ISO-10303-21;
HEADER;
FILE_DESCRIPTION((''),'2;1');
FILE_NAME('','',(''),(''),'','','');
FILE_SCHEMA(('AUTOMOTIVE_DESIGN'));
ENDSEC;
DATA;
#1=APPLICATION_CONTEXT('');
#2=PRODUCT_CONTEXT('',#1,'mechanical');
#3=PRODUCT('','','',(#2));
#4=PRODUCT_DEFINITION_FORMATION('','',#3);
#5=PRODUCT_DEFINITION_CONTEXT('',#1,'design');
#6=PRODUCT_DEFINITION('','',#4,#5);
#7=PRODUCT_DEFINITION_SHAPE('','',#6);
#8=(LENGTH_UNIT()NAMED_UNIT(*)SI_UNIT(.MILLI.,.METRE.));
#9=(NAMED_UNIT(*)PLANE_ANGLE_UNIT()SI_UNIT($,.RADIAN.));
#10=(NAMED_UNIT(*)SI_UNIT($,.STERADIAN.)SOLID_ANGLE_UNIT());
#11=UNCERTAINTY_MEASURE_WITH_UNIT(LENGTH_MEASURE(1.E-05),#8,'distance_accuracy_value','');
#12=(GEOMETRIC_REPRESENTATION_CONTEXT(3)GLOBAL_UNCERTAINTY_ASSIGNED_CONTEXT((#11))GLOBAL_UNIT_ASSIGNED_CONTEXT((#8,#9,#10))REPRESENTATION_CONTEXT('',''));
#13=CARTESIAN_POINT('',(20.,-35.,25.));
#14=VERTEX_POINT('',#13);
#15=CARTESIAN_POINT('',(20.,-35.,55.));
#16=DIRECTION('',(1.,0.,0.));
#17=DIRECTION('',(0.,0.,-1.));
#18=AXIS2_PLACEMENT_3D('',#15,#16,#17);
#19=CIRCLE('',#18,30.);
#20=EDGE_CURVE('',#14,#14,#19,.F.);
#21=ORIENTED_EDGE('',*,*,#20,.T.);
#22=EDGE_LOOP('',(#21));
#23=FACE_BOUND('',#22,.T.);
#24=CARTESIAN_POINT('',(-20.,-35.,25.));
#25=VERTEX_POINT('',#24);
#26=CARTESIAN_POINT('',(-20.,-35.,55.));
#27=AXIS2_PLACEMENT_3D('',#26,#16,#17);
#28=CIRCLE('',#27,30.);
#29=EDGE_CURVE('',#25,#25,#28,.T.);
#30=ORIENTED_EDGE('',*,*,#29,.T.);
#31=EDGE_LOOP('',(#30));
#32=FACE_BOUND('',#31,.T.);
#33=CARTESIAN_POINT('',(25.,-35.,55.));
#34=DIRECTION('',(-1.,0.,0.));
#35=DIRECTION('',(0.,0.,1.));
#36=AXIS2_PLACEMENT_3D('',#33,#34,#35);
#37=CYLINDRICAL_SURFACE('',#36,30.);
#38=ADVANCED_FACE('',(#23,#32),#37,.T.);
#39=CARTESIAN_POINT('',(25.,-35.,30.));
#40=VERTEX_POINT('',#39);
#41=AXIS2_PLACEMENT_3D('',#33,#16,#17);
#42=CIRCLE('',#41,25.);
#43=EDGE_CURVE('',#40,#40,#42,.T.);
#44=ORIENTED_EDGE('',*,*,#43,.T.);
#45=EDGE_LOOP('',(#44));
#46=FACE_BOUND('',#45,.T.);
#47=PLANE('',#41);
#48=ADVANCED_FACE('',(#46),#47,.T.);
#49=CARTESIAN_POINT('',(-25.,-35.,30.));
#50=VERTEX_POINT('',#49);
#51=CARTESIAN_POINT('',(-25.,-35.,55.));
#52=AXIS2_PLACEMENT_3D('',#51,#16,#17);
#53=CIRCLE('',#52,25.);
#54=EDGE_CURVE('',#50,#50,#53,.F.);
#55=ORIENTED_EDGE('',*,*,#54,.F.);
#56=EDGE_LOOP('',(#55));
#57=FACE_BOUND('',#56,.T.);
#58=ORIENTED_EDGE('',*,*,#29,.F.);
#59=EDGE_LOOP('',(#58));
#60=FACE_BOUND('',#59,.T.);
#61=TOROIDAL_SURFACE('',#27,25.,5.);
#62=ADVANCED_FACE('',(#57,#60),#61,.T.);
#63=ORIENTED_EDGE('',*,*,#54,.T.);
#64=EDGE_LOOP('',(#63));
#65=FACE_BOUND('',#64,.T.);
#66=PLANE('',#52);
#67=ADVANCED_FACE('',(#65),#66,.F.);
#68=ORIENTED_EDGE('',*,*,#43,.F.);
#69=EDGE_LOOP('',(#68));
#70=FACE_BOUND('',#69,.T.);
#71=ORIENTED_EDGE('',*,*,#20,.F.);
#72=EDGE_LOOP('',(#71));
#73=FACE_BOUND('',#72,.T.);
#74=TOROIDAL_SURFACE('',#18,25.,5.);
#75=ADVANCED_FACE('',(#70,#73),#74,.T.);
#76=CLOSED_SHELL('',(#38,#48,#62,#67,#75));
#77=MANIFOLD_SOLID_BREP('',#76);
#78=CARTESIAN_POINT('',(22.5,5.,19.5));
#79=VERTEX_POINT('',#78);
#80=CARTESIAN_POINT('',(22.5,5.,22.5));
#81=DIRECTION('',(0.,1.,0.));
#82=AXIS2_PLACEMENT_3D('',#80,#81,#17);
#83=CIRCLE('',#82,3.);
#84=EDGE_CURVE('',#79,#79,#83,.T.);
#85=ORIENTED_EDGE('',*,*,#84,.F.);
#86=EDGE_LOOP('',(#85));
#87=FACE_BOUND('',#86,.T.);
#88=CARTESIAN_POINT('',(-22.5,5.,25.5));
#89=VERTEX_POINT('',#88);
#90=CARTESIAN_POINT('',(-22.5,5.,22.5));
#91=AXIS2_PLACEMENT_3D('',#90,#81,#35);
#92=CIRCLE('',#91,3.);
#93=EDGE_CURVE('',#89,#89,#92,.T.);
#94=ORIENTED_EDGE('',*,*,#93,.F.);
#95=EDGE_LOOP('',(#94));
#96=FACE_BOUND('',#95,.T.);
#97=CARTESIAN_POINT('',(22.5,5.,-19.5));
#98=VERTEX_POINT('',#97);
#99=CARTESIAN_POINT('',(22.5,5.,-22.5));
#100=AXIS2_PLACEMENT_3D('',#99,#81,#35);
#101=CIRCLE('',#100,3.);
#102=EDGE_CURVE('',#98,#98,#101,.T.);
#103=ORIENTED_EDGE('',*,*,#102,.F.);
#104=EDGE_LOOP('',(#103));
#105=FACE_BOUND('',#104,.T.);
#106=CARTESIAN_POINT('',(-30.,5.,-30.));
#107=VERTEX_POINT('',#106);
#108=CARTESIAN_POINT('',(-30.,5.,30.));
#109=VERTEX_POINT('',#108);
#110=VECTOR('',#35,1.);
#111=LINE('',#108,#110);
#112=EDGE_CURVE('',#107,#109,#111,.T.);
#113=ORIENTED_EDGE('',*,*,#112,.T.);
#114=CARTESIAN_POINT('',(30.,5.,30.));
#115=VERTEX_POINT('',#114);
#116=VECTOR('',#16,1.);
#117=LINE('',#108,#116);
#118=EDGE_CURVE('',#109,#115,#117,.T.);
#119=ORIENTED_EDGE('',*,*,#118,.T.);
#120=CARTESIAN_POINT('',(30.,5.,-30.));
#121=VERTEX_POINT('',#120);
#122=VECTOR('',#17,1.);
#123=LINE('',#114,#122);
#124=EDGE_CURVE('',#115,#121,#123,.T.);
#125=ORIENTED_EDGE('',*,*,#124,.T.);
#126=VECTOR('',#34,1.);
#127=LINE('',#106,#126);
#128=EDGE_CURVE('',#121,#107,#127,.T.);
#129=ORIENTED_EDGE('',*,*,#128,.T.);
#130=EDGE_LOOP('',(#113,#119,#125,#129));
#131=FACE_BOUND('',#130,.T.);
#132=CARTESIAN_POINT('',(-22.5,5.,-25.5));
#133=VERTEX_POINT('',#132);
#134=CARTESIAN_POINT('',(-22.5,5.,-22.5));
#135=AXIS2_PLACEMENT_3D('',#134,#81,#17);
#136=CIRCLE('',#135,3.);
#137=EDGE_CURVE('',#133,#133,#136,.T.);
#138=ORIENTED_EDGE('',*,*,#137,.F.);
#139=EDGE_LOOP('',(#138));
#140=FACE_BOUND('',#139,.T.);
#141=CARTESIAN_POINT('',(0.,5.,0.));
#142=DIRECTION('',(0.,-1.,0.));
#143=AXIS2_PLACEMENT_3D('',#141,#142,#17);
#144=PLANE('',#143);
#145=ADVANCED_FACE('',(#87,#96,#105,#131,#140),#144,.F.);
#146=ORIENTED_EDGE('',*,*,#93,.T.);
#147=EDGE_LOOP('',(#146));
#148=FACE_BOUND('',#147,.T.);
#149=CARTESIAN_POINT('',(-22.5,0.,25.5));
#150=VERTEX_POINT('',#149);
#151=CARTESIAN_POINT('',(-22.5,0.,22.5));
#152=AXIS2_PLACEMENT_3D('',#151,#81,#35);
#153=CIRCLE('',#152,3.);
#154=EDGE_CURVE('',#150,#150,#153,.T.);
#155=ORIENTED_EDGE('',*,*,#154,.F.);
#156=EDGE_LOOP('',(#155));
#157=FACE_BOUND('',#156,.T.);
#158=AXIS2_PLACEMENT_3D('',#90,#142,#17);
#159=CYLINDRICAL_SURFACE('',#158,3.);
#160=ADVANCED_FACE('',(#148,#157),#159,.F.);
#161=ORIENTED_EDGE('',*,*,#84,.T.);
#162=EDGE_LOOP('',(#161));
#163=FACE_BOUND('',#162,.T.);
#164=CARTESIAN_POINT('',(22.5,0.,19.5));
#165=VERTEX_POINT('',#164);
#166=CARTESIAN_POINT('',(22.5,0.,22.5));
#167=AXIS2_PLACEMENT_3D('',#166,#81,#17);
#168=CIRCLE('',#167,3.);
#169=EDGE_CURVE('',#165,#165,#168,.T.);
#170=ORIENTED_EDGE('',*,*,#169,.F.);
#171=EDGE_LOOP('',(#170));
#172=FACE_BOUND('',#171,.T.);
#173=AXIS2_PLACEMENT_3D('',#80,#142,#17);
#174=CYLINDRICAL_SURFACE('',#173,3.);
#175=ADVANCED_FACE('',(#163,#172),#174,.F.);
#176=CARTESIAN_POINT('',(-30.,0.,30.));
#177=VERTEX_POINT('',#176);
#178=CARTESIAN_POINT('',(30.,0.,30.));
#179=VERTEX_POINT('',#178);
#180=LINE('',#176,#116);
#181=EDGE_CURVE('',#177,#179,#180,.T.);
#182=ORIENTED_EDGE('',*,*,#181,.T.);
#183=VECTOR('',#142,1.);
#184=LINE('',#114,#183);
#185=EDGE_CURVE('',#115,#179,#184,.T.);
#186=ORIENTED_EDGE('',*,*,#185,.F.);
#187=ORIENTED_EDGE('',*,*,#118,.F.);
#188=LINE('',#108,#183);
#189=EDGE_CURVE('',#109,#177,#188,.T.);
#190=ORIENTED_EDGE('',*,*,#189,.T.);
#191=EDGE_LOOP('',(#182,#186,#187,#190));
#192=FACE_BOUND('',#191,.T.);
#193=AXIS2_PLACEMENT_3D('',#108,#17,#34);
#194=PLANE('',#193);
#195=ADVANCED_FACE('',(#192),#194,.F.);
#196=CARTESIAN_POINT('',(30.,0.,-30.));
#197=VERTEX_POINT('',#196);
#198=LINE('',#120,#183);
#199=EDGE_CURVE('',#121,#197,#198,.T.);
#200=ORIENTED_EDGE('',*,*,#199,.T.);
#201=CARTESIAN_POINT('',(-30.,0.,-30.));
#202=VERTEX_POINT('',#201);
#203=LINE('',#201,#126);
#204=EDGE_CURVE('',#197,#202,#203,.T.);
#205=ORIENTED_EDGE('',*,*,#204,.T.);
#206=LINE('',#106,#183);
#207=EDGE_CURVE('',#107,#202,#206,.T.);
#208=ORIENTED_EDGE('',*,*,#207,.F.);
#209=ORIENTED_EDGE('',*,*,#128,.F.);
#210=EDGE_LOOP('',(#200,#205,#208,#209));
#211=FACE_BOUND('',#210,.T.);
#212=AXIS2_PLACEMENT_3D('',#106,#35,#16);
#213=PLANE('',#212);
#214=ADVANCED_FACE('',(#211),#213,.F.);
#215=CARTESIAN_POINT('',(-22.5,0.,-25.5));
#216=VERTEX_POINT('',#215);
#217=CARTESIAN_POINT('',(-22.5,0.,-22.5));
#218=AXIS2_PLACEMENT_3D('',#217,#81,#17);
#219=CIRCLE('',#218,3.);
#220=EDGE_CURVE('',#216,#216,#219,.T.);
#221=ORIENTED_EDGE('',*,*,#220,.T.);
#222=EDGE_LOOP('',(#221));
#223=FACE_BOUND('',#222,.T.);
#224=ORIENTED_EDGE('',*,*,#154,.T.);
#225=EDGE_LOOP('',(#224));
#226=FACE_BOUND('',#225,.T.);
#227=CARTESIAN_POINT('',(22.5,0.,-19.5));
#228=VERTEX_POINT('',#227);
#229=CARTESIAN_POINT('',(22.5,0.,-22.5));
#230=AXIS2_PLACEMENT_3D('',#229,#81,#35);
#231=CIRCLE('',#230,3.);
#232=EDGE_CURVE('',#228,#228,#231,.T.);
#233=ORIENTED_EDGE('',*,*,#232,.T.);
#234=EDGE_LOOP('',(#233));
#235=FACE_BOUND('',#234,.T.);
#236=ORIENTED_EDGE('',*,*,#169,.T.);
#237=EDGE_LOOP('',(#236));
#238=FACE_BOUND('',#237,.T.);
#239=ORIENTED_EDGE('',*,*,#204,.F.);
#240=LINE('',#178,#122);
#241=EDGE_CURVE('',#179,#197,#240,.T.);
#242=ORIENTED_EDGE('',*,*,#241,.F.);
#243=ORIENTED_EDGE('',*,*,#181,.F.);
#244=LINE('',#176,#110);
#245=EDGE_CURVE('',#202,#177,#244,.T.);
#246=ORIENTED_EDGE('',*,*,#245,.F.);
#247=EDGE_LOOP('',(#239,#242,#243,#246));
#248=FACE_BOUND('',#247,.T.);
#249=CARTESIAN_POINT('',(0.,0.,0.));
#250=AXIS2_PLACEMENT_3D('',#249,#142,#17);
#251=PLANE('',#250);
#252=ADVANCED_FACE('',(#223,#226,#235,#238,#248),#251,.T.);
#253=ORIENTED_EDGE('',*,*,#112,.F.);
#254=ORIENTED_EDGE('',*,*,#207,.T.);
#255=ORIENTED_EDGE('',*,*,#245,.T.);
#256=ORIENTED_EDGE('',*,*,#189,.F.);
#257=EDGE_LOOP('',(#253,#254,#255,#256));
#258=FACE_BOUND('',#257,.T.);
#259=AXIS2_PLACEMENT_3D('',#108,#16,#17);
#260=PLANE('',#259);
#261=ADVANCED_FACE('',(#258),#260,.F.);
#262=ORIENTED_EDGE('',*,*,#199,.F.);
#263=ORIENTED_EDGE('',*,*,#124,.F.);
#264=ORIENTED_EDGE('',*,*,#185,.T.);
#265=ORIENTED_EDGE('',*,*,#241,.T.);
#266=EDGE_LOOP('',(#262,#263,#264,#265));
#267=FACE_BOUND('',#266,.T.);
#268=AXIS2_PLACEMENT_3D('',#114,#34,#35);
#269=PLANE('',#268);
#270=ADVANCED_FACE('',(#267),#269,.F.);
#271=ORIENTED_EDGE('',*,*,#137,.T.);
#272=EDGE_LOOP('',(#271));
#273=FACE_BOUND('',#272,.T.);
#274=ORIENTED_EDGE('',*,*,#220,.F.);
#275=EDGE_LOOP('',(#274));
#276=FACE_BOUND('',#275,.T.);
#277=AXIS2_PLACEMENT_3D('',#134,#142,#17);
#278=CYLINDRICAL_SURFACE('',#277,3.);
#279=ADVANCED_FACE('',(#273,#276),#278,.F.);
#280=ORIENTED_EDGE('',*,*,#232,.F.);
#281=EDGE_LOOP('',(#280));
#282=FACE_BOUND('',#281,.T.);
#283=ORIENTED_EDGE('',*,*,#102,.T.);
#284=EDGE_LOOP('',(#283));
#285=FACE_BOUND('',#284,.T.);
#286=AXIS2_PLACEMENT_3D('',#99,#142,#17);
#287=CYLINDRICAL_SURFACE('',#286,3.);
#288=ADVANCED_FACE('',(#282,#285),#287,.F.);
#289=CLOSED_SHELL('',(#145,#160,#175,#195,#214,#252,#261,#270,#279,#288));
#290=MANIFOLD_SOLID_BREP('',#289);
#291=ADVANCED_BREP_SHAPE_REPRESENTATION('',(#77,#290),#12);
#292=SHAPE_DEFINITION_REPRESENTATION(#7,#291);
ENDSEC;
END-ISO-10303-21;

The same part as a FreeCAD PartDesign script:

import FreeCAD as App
import Part
import Sketcher
from FreeCAD import Vector


def edges_at(feature, points):
    """Names of the edges that pass closest to the given points."""
    edges = feature.Shape.Edges
    near = lambda p: min(range(len(edges)), key=lambda i: edges[i].distToShape(Part.Vertex(*p))[0])
    return sorted({f"Edge{near(p) + 1}" for p in points})


def add_polygon(sketch, points):
    """Adds a closed chain of lines whose ends are joined by coincident constraints."""
    first, n = sketch.GeometryCount, len(points)
    for a, b in zip(points, points[1:] + points[:1]):
        sketch.addGeometry(Part.LineSegment(App.Vector(*a, 0), App.Vector(*b, 0)), False)
    for i in range(n):
        sketch.addConstraint(Sketcher.Constraint("Coincident", first + i, 2, first + (i + 1) % n, 1))

doc = App.newDocument("Part")
params = doc.addObject("Spreadsheet::Sheet", "Params")
for row, (alias, value) in enumerate([
    ("sketch1_diameter", "6 mm"),
    ("sketch1_width", "60 mm"),
    ("pad1_length", "5 mm"),
    ("sketch2_diameter", "60 mm"),
    ("pad2_length", "50 mm"),
    ("fillet_radius", "5 mm"),
], start=1):
    params.set(f"A{row}", alias)
    params.set(f"B{row}", "=" + value)
    params.setAlias(f"B{row}", alias)

body = doc.addObject("PartDesign::Body", "Body")

sketch1 = body.newObject("Sketcher::SketchObject", "Sketch")
sketch1.AttachmentSupport = (doc.getObject("XZ_Plane"), [""])
sketch1.MapMode = "FlatFace"
add_polygon(sketch1, [(-30, -30), (-30, 30), (30, 30), (30, -30)])
sketch1.addGeometry(Part.Circle(Vector(-22.5, 22.5, 0), Vector(0, 0, 1), 3), False)
sketch1.addGeometry(Part.Circle(Vector(22.5, 22.5, 0), Vector(0, 0, 1), 3), False)
sketch1.addGeometry(Part.Circle(Vector(-22.5, -22.5, 0), Vector(0, 0, 1), 3), False)
sketch1.addGeometry(Part.Circle(Vector(22.5, -22.5, 0), Vector(0, 0, 1), 3), False)
sketch1.addConstraint([
    Sketcher.Constraint("Vertical", 0),
    Sketcher.Constraint("Horizontal", 1),
    Sketcher.Constraint("Vertical", 2),
    Sketcher.Constraint("Horizontal", 3),
    Sketcher.Constraint("Equal", 4, 5),
    Sketcher.Constraint("Equal", 5, 6),
    Sketcher.Constraint("Equal", 6, 7),
    Sketcher.Constraint("Symmetric", 5, 3, 6, 3, -1, 1),
    Sketcher.Constraint("Symmetric", 4, 3, 7, 3, -1, 1),
    Sketcher.Constraint("Symmetric", 0, 2, 2, 2, -1, 1),
    Sketcher.Constraint("Symmetric", 4, 3, 5, 3, -2),
    Sketcher.Constraint("Equal", 3, 0),
    Sketcher.Constraint("Diameter", 4, 6.0),
    Sketcher.Constraint("DistanceX", 1, 1, 1, 2, 60.0),
    Sketcher.Constraint("DistanceX", 4, 3, 5, 3, 45.0),
    Sketcher.Constraint("DistanceY", 6, 3, 4, 3, 45.0),
])
sketch1.setExpression("Constraints[16]", "Params.sketch1_diameter")
sketch1.setExpression("Constraints[17]", "Params.sketch1_width")
pad1 = body.newObject("PartDesign::Pad", "Pad")
pad1.Profile = sketch1
pad1.setExpression("Length", "Params.pad1_length")
pad1.Reversed = True
body2 = doc.addObject("PartDesign::Body", "Body001")

sketch2 = body2.newObject("Sketcher::SketchObject", "Sketch001")
sketch2.AttachmentSupport = (doc.getObject("YZ_Plane001"), [""])
sketch2.MapMode = "FlatFace"
sketch2.addGeometry(Part.Circle(Vector(-35, 55, 0), Vector(0, 0, 1), 30), False)
sketch2.addConstraint([
    Sketcher.Constraint("Diameter", 0, 60.0),
    Sketcher.Constraint("DistanceX", 0, 3, -1, 1, 35.0),
    Sketcher.Constraint("DistanceY", -1, 1, 0, 3, 55.0),
])
sketch2.setExpression("Constraints[0]", "Params.sketch2_diameter")
pad2 = body2.newObject("PartDesign::Pad", "Pad001")
pad2.Profile = sketch2
pad2.setExpression("Length", "Params.pad2_length")
pad2.Midplane = True
doc.recompute()

fillet = body2.newObject("PartDesign::Fillet", "Fillet")
fillet.Base = (pad2, edges_at(pad2, [(-25, -35, 85), (25, -35, 85)]))
fillet.setExpression("Radius", "Params.fillet_radius")

doc.recompute()
